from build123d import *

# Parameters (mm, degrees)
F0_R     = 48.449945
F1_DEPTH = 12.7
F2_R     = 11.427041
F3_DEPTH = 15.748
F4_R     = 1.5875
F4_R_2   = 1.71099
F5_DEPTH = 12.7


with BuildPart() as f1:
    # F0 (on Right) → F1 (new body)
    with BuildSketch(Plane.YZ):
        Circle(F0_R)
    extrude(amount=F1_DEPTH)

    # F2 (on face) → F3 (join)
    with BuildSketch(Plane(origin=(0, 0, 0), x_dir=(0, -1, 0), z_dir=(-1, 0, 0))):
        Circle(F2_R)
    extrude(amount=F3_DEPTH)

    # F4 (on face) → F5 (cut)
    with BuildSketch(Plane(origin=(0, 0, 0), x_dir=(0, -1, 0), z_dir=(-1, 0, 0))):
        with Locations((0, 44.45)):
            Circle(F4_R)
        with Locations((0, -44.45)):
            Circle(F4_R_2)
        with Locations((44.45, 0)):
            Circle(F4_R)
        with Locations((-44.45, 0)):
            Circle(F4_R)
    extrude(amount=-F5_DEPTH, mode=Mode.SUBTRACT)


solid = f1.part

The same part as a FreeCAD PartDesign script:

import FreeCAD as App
import Part
import Sketcher
from FreeCAD import Vector
Q = App.Units.Quantity

doc = App.newDocument("Part")
body = doc.addObject("PartDesign::Body", "Body")

# Sketch on YZ plane
sketch1 = doc.addObject("Sketcher::SketchObject", "Sketch")
body.addObject(sketch1)
sketch1.AttachmentSupport = (doc.YZ_Plane, [""])
sketch1.MapMode = "FlatFace"
sketch1.addGeometry(Part.Circle(Vector(0, 0, 0), Vector(0, 0, 1), 48.449945), False)
sketch1.addConstraint([
    Sketcher.Constraint("Coincident", 0, 3, -1, 1),
    Sketcher.Constraint("Diameter", 0, Q("96.89989 mm")),
])
pad1 = doc.addObject("PartDesign::Pad", "Pad")
body.addObject(pad1)
pad1.Profile = sketch1
pad1.Length = Q("0.5 in")

# Sketch on YZ plane
sketch2 = doc.addObject("Sketcher::SketchObject", "Sketch001")
body.addObject(sketch2)
sketch2.AttachmentSupport = (doc.YZ_Plane, [""])
sketch2.MapMode = "FlatFace"
sketch2.addGeometry(Part.Circle(Vector(0, 0, 0), Vector(0, 0, 1), 11.427041), False)
sketch2.addConstraint([
    Sketcher.Constraint("Coincident", 0, 3, -1, 1),
    Sketcher.Constraint("Diameter", 0, Q("22.854082 mm")),
])
pad2 = doc.addObject("PartDesign::Pad", "Pad001")
body.addObject(pad2)
pad2.Profile = sketch2
pad2.Length = Q("0.62 in")
pad2.Reversed = True

# Sketch on YZ plane
sketch3 = doc.addObject("Sketcher::SketchObject", "Sketch002")
body.addObject(sketch3)
sketch3.AttachmentSupport = (doc.YZ_Plane, [""])
sketch3.MapMode = "FlatFace"
sketch3.addGeometry([
    Part.Circle(Vector(0, 44.45, 0), Vector(0, 0, 1), 1.5875),
    Part.Circle(Vector(0, -44.45, 0), Vector(0, 0, 1), 1.71099),
    Part.Circle(Vector(-44.45, 0, 0), Vector(0, 0, 1), 1.5875),
    Part.Circle(Vector(44.45, 0, 0), Vector(0, 0, 1), 1.5875),
], False)
sketch3.addConstraint([
    Sketcher.Constraint("Equal", 0, 2),
    Sketcher.Constraint("Equal", 2, 3),
    Sketcher.Constraint("Symmetric", 0, 3, 1, 3, -1, 1),
    Sketcher.Constraint("Symmetric", 2, 3, 3, 3, -1, 1),
    Sketcher.Constraint("PointOnObject", 0, 3, -2),
    Sketcher.Constraint("PointOnObject", 2, 3, -1),
    Sketcher.Constraint("Diameter", 0, Q("0.125 in")),
    Sketcher.Constraint("DistanceY", 1, 3, 0, 3, Q("3.5 in")),
    Sketcher.Constraint("DistanceX", 2, 3, 3, 3, Q("3.5 in")),
    Sketcher.Constraint("Diameter", 1, Q("3.42198 mm")),
])
pocket1 = doc.addObject("PartDesign::Pocket", "Pocket")
body.addObject(pocket1)
pocket1.Profile = sketch3
pocket1.Length = Q("0.5 in")
pocket1.Reversed = True

doc.recompute()
